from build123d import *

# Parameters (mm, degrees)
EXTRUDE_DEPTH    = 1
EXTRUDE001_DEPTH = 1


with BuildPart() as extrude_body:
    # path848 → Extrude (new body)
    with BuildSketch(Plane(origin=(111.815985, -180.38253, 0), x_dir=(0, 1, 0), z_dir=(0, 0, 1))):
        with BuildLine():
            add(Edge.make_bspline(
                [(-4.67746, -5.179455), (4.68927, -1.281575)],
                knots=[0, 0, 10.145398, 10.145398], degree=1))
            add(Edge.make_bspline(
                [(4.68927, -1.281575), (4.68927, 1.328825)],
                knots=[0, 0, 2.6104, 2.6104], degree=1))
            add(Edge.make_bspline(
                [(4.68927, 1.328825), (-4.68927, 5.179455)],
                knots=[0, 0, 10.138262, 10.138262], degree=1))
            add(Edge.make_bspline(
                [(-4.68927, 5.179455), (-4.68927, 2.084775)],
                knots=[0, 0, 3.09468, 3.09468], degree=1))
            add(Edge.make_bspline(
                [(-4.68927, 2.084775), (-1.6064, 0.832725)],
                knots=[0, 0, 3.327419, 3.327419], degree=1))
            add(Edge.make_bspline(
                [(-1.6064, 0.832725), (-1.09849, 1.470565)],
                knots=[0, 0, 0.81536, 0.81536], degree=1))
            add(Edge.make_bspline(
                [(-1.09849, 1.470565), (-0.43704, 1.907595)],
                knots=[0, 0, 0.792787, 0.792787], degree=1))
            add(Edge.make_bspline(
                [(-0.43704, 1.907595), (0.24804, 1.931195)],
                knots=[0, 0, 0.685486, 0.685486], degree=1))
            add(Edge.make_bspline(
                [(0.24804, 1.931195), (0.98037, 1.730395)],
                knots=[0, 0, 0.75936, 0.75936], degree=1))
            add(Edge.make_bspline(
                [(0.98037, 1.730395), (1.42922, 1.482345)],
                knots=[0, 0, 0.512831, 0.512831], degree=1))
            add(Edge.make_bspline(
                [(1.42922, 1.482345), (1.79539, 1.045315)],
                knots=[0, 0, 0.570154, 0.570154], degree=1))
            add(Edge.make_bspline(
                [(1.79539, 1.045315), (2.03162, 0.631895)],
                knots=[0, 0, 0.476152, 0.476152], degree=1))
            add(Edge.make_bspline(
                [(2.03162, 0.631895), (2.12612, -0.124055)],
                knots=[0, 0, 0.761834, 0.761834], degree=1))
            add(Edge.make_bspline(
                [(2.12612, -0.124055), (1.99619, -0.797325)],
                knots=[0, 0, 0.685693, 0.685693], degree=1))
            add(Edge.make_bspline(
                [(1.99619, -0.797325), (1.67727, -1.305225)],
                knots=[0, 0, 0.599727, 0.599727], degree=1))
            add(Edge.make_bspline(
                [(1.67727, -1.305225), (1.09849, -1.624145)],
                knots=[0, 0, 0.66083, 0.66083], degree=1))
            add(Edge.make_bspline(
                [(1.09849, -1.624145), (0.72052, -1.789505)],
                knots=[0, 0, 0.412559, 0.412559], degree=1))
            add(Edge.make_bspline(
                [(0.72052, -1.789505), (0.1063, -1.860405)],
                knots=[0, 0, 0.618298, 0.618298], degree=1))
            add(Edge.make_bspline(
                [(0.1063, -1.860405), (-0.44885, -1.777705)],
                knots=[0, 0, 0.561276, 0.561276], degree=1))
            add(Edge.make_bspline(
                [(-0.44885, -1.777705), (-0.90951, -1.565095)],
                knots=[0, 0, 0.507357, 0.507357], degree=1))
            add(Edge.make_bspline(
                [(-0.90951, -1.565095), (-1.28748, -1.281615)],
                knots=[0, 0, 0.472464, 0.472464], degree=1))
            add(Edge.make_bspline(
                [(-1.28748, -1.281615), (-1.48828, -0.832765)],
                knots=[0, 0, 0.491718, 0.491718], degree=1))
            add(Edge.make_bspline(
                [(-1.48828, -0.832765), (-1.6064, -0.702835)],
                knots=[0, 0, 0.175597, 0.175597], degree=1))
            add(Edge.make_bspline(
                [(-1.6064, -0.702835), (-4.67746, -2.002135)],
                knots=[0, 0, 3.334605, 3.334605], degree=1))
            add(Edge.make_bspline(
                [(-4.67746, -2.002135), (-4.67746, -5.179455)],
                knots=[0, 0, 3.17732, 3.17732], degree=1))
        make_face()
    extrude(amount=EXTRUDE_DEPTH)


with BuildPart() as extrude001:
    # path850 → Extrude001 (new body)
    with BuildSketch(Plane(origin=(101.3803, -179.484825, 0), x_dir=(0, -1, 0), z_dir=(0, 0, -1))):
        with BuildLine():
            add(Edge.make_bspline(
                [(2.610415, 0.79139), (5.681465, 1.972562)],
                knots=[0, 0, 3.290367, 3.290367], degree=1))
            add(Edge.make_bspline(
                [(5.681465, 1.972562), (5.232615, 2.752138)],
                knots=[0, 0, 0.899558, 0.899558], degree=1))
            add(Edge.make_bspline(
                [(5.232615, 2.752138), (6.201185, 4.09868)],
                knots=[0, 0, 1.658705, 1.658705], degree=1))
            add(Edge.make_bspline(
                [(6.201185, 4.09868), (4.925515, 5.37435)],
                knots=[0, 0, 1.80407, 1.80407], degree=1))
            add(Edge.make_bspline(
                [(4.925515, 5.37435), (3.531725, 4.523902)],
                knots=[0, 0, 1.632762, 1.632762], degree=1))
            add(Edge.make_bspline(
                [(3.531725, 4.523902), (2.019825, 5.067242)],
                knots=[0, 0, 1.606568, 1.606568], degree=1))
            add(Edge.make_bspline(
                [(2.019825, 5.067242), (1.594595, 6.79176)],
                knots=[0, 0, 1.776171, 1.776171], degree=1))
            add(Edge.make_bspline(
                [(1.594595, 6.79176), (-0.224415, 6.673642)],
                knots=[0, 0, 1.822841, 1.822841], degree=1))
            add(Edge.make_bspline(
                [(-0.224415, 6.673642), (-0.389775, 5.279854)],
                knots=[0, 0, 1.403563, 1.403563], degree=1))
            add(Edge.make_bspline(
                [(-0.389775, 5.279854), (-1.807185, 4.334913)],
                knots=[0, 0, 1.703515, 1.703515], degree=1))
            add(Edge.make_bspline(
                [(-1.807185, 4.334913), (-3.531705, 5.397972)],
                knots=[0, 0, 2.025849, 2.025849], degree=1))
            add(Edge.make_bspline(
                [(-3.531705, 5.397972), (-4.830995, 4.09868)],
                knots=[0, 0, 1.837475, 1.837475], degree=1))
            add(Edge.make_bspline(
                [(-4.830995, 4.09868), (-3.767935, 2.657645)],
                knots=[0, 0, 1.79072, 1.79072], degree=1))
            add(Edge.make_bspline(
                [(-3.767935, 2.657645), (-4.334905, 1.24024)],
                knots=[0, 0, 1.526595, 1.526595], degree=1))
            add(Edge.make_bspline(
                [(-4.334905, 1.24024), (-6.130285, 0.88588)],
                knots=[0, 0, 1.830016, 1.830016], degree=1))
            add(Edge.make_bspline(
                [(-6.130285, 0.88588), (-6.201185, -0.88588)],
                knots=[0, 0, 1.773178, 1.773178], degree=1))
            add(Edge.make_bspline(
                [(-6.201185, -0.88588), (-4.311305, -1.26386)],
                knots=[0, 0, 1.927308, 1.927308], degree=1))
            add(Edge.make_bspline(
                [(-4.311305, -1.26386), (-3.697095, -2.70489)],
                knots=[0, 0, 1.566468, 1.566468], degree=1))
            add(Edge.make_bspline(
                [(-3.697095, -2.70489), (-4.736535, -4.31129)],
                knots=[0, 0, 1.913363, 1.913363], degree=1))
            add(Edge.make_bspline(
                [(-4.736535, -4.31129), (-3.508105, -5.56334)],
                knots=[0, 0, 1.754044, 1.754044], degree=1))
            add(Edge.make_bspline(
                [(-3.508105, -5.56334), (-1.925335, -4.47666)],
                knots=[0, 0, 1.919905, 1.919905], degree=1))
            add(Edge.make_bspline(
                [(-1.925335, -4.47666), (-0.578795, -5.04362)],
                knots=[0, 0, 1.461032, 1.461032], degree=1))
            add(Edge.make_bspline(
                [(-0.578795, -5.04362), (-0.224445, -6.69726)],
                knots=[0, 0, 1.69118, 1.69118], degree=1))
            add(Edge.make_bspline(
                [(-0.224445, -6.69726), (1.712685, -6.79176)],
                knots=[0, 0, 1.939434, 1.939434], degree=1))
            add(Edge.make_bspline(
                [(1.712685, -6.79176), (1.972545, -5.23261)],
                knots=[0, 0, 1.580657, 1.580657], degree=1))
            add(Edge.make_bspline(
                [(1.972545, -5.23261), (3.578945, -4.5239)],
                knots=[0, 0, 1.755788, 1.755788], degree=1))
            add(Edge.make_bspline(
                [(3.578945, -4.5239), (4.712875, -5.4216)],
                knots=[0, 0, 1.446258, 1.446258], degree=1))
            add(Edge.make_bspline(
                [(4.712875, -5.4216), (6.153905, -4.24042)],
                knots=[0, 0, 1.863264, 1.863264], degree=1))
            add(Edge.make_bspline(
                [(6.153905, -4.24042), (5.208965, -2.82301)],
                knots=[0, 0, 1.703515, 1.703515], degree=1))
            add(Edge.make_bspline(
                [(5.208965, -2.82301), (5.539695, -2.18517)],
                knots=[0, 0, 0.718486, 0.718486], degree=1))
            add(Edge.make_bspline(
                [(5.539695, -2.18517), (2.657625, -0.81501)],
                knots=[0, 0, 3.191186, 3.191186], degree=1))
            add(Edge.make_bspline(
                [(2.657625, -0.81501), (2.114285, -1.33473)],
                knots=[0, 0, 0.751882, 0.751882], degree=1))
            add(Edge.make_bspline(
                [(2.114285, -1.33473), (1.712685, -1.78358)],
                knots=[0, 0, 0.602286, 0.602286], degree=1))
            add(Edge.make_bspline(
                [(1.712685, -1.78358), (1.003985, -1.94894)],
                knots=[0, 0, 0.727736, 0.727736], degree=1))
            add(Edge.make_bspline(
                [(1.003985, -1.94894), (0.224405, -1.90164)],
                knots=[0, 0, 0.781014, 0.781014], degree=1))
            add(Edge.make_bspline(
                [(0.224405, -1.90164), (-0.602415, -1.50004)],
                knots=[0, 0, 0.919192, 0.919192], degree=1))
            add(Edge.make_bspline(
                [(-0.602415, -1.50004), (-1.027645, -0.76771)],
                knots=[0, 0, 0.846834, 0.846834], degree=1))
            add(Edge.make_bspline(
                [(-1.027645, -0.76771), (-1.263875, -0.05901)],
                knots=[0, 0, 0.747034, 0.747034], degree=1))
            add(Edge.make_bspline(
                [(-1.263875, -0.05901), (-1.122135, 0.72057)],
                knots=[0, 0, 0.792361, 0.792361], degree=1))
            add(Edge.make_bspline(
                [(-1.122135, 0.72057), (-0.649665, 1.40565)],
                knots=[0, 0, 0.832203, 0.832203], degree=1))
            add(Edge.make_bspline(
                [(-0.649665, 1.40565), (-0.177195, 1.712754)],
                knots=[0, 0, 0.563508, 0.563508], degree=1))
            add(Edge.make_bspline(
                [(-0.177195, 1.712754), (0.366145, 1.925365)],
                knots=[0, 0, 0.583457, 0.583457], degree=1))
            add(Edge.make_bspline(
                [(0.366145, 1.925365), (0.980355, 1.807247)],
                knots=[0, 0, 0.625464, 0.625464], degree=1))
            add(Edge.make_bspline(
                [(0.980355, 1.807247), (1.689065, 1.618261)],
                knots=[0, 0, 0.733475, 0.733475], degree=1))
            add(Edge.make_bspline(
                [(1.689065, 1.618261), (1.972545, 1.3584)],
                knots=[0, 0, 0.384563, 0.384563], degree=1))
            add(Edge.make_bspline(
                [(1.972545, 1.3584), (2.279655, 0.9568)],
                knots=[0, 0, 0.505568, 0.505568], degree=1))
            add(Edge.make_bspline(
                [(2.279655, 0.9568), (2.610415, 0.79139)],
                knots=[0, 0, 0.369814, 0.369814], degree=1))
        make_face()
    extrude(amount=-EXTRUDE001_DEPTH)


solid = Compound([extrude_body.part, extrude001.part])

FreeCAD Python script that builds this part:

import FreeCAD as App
import Part
import Sketcher

V = App.Vector

doc = App.newDocument("Part")
body = doc.addObject("PartDesign::Body", "Body")

# Sketch on XY plane
sketch1 = doc.addObject("Sketcher::SketchObject", "Sketch")
body.addObject(sketch1)
sketch1.AttachmentSupport = (doc.XY_Plane, [""])
sketch1.MapMode = "FlatFace"
sketch1.addGeometry([
    Part.BSplineCurve([V(116.99544, -185.05999, 0), V(113.09756, -175.69326, 0)], [2, 2], [0, 10.145398], False, 1, [1, 1], False),  # 0
    Part.BSplineCurve([V(113.09756, -175.69326, 0), V(110.48716, -175.69326, 0)], [2, 2], [0, 2.6104], False, 1, [1, 1], False),  # 1
    Part.BSplineCurve([V(110.48716, -175.69326, 0), V(106.63653, -185.0718, 0)], [2, 2], [0, 10.138262], False, 1, [1, 1], False),  # 2
    Part.BSplineCurve([V(106.63653, -185.0718, 0), V(109.73121, -185.0718, 0)], [2, 2], [0, 3.09468], False, 1, [1, 1], False),  # 3
    Part.BSplineCurve([V(109.73121, -185.0718, 0), V(110.98326, -181.98893, 0)], [2, 2], [0, 3.327419], False, 1, [1, 1], False),  # 4
    Part.BSplineCurve([V(110.98326, -181.98893, 0), V(110.34542, -181.48102, 0)], [2, 2], [0, 0.81536], False, 1, [1, 1], False),  # 5
    Part.BSplineCurve([V(110.34542, -181.48102, 0), V(109.90839, -180.81957, 0)], [2, 2], [0, 0.792787], False, 1, [1, 1], False),  # 6
    Part.BSplineCurve([V(109.90839, -180.81957, 0), V(109.88479, -180.13449, 0)], [2, 2], [0, 0.685486], False, 1, [1, 1], False),  # 7
    Part.BSplineCurve([V(109.88479, -180.13449, 0), V(110.08559, -179.40216, 0)], [2, 2], [0, 0.75936], False, 1, [1, 1], False),  # 8
    Part.BSplineCurve([V(110.08559, -179.40216, 0), V(110.33364, -178.95331, 0)], [2, 2], [0, 0.512831], False, 1, [1, 1], False),  # 9
    Part.BSplineCurve([V(110.33364, -178.95331, 0), V(110.77067, -178.58714, 0)], [2, 2], [0, 0.570154], False, 1, [1, 1], False),  # 10
    Part.BSplineCurve([V(110.77067, -178.58714, 0), V(111.18409, -178.35091, 0)], [2, 2], [0, 0.476152], False, 1, [1, 1], False),  # 11
    Part.BSplineCurve([V(111.18409, -178.35091, 0), V(111.94004, -178.25641, 0)], [2, 2], [0, 0.761834], False, 1, [1, 1], False),  # 12
    Part.BSplineCurve([V(111.94004, -178.25641, 0), V(112.61331, -178.38634, 0)], [2, 2], [0, 0.685693], False, 1, [1, 1], False),  # 13
    Part.BSplineCurve([V(112.61331, -178.38634, 0), V(113.12121, -178.70526, 0)], [2, 2], [0, 0.599727], False, 1, [1, 1], False),  # 14
    Part.BSplineCurve([V(113.12121, -178.70526, 0), V(113.44013, -179.28404, 0)], [2, 2], [0, 0.66083], False, 1, [1, 1], False),  # 15
    Part.BSplineCurve([V(113.44013, -179.28404, 0), V(113.60549, -179.66201, 0)], [2, 2], [0, 0.412559], False, 1, [1, 1], False),  # 16
    Part.BSplineCurve([V(113.60549, -179.66201, 0), V(113.67639, -180.27623, 0)], [2, 2], [0, 0.618298], False, 1, [1, 1], False),  # 17
    Part.BSplineCurve([V(113.67639, -180.27623, 0), V(113.59369, -180.83138, 0)], [2, 2], [0, 0.561276], False, 1, [1, 1], False),  # 18
    Part.BSplineCurve([V(113.59369, -180.83138, 0), V(113.38108, -181.29204, 0)], [2, 2], [0, 0.507357], False, 1, [1, 1], False),  # 19
    Part.BSplineCurve([V(113.38108, -181.29204, 0), V(113.0976, -181.67001, 0)], [2, 2], [0, 0.472464], False, 1, [1, 1], False),  # 20
    Part.BSplineCurve([V(113.0976, -181.67001, 0), V(112.64875, -181.87081, 0)], [2, 2], [0, 0.491718], False, 1, [1, 1], False),  # 21
    Part.BSplineCurve([V(112.64875, -181.87081, 0), V(112.51882, -181.98893, 0)], [2, 2], [0, 0.175597], False, 1, [1, 1], False),  # 22
    Part.BSplineCurve([V(112.51882, -181.98893, 0), V(113.81812, -185.05999, 0)], [2, 2], [0, 3.334605], False, 1, [1, 1], False),  # 23
    Part.BSplineCurve([V(113.81812, -185.05999, 0), V(116.99544, -185.05999, 0)], [2, 2], [0, 3.17732], False, 1, [1, 1], False),  # 24
], False)
sketch1.addConstraint([
    Sketcher.Constraint("Block", 0),
    Sketcher.Constraint("Block", 1),
    Sketcher.Constraint("Block", 2),
    Sketcher.Constraint("Block", 3),
    Sketcher.Constraint("Block", 4),
    Sketcher.Constraint("Block", 5),
    Sketcher.Constraint("Block", 6),
    Sketcher.Constraint("Block", 7),
    Sketcher.Constraint("Block", 8),
    Sketcher.Constraint("Block", 9),
    Sketcher.Constraint("Block", 10),
    Sketcher.Constraint("Block", 11),
    Sketcher.Constraint("Block", 12),
    Sketcher.Constraint("Block", 13),
    Sketcher.Constraint("Block", 14),
    Sketcher.Constraint("Block", 15),
    Sketcher.Constraint("Block", 16),
    Sketcher.Constraint("Block", 17),
    Sketcher.Constraint("Block", 18),
    Sketcher.Constraint("Block", 19),
    Sketcher.Constraint("Block", 20),
    Sketcher.Constraint("Block", 21),
    Sketcher.Constraint("Block", 22),
    Sketcher.Constraint("Block", 23),
    Sketcher.Constraint("Block", 24),
])
pad1 = doc.addObject("PartDesign::Pad", "Pad")
body.addObject(pad1)
pad1.Profile = sketch1
pad1.Length = 1
body2 = doc.addObject("PartDesign::Body", "Body001")

# Sketch on XY plane
sketch2 = doc.addObject("Sketcher::SketchObject", "Sketch001")
body2.addObject(sketch2)
sketch2.AttachmentSupport = (doc.getObject("XY_Plane001"), [""])
sketch2.MapMode = "FlatFace"
sketch2.addGeometry([
    Part.BSplineCurve([V(100.58891, -182.09524, 0), V(99.407738, -185.16629, 0)], [2, 2], [0, 3.290367], False, 1, [1, 1], False),  # 0
    Part.BSplineCurve([V(99.407738, -185.16629, 0), V(98.628162, -184.71744, 0)], [2, 2], [0, 0.899558], False, 1, [1, 1], False),  # 1
    Part.BSplineCurve([V(98.628162, -184.71744, 0), V(97.28162, -185.68601, 0)], [2, 2], [0, 1.658705], False, 1, [1, 1], False),  # 2
    Part.BSplineCurve([V(97.28162, -185.68601, 0), V(96.00595, -184.41034, 0)], [2, 2], [0, 1.80407], False, 1, [1, 1], False),  # 3
    Part.BSplineCurve([V(96.00595, -184.41034, 0), V(96.856398, -183.01655, 0)], [2, 2], [0, 1.632762], False, 1, [1, 1], False),  # 4
    Part.BSplineCurve([V(96.856398, -183.01655, 0), V(96.313058, -181.50465, 0)], [2, 2], [0, 1.606568], False, 1, [1, 1], False),  # 5
    Part.BSplineCurve([V(96.313058, -181.50465, 0), V(94.58854, -181.07942, 0)], [2, 2], [0, 1.776171], False, 1, [1, 1], False),  # 6
    Part.BSplineCurve([V(94.58854, -181.07942, 0), V(94.706658, -179.26041, 0)], [2, 2], [0, 1.822841], False, 1, [1, 1], False),  # 7
    Part.BSplineCurve([V(94.706658, -179.26041, 0), V(96.100446, -179.09505, 0)], [2, 2], [0, 1.403563], False, 1, [1, 1], False),  # 8
    Part.BSplineCurve([V(96.100446, -179.09505, 0), V(97.045387, -177.67764, 0)], [2, 2], [0, 1.703515], False, 1, [1, 1], False),  # 9
    Part.BSplineCurve([V(97.045387, -177.67764, 0), V(95.982328, -175.95312, 0)], [2, 2], [0, 2.025849], False, 1, [1, 1], False),  # 10
    Part.BSplineCurve([V(95.982328, -175.95312, 0), V(97.28162, -174.65383, 0)], [2, 2], [0, 1.837475], False, 1, [1, 1], False),  # 11
    Part.BSplineCurve([V(97.28162, -174.65383, 0), V(98.722655, -175.71689, 0)], [2, 2], [0, 1.79072], False, 1, [1, 1], False),  # 12
    Part.BSplineCurve([V(98.722655, -175.71689, 0), V(100.14006, -175.14992, 0)], [2, 2], [0, 1.526595], False, 1, [1, 1], False),  # 13
    Part.BSplineCurve([V(100.14006, -175.14992, 0), V(100.49442, -173.35454, 0)], [2, 2], [0, 1.830016], False, 1, [1, 1], False),  # 14
    Part.BSplineCurve([V(100.49442, -173.35454, 0), V(102.26618, -173.28364, 0)], [2, 2], [0, 1.773178], False, 1, [1, 1], False),  # 15
    Part.BSplineCurve([V(102.26618, -173.28364, 0), V(102.64416, -175.17352, 0)], [2, 2], [0, 1.927308], False, 1, [1, 1], False),  # 16
    Part.BSplineCurve([V(102.64416, -175.17352, 0), V(104.08519, -175.78773, 0)], [2, 2], [0, 1.566468], False, 1, [1, 1], False),  # 17
    Part.BSplineCurve([V(104.08519, -175.78773, 0), V(105.69159, -174.74829, 0)], [2, 2], [0, 1.913363], False, 1, [1, 1], False),  # 18
    Part.BSplineCurve([V(105.69159, -174.74829, 0), V(106.94364, -175.97672, 0)], [2, 2], [0, 1.754044], False, 1, [1, 1], False),  # 19
    Part.BSplineCurve([V(106.94364, -175.97672, 0), V(105.85696, -177.55949, 0)], [2, 2], [0, 1.919905], False, 1, [1, 1], False),  # 20
    Part.BSplineCurve([V(105.85696, -177.55949, 0), V(106.42392, -178.90603, 0)], [2, 2], [0, 1.461032], False, 1, [1, 1], False),  # 21
    Part.BSplineCurve([V(106.42392, -178.90603, 0), V(108.07756, -179.26038, 0)], [2, 2], [0, 1.69118], False, 1, [1, 1], False),  # 22
    Part.BSplineCurve([V(108.07756, -179.26038, 0), V(108.17206, -181.19751, 0)], [2, 2], [0, 1.939434], False, 1, [1, 1], False),  # 23
    Part.BSplineCurve([V(108.17206, -181.19751, 0), V(106.61291, -181.45737, 0)], [2, 2], [0, 1.580657], False, 1, [1, 1], False),  # 24
    Part.BSplineCurve([V(106.61291, -181.45737, 0), V(105.9042, -183.06377, 0)], [2, 2], [0, 1.755788], False, 1, [1, 1], False),  # 25
    Part.BSplineCurve([V(105.9042, -183.06377, 0), V(106.8019, -184.1977, 0)], [2, 2], [0, 1.446258], False, 1, [1, 1], False),  # 26
    Part.BSplineCurve([V(106.8019, -184.1977, 0), V(105.62072, -185.63873, 0)], [2, 2], [0, 1.863264], False, 1, [1, 1], False),  # 27
    Part.BSplineCurve([V(105.62072, -185.63873, 0), V(104.20331, -184.69379, 0)], [2, 2], [0, 1.703515], False, 1, [1, 1], False),  # 28
    Part.BSplineCurve([V(104.20331, -184.69379, 0), V(103.56547, -185.02452, 0)], [2, 2], [0, 0.718486], False, 1, [1, 1], False),  # 29
    Part.BSplineCurve([V(103.56547, -185.02452, 0), V(102.19531, -182.14245, 0)], [2, 2], [0, 3.191186], False, 1, [1, 1], False),  # 30
    Part.BSplineCurve([V(102.19531, -182.14245, 0), V(102.71503, -181.59911, 0)], [2, 2], [0, 0.751882], False, 1, [1, 1], False),  # 31
    Part.BSplineCurve([V(102.71503, -181.59911, 0), V(103.16388, -181.19751, 0)], [2, 2], [0, 0.602286], False, 1, [1, 1], False),  # 32
    Part.BSplineCurve([V(103.16388, -181.19751, 0), V(103.32924, -180.48881, 0)], [2, 2], [0, 0.727736], False, 1, [1, 1], False),  # 33
    Part.BSplineCurve([V(103.32924, -180.48881, 0), V(103.28194, -179.70923, 0)], [2, 2], [0, 0.781014], False, 1, [1, 1], False),  # 34
    Part.BSplineCurve([V(103.28194, -179.70923, 0), V(102.88034, -178.88241, 0)], [2, 2], [0, 0.919192], False, 1, [1, 1], False),  # 35
    Part.BSplineCurve([V(102.88034, -178.88241, 0), V(102.14801, -178.45718, 0)], [2, 2], [0, 0.846834], False, 1, [1, 1], False),  # 36
    Part.BSplineCurve([V(102.14801, -178.45718, 0), V(101.43931, -178.22095, 0)], [2, 2], [0, 0.747034], False, 1, [1, 1], False),  # 37
    Part.BSplineCurve([V(101.43931, -178.22095, 0), V(100.65973, -178.36269, 0)], [2, 2], [0, 0.792361], False, 1, [1, 1], False),  # 38
    Part.BSplineCurve([V(100.65973, -178.36269, 0), V(99.97465, -178.83516, 0)], [2, 2], [0, 0.832203], False, 1, [1, 1], False),  # 39
    Part.BSplineCurve([V(99.97465, -178.83516, 0), V(99.667546, -179.30763, 0)], [2, 2], [0, 0.563508], False, 1, [1, 1], False),  # 40
    Part.BSplineCurve([V(99.667546, -179.30763, 0), V(99.454935, -179.85097, 0)], [2, 2], [0, 0.583457], False, 1, [1, 1], False),  # 41
    Part.BSplineCurve([V(99.454935, -179.85097, 0), V(99.573053, -180.46518, 0)], [2, 2], [0, 0.625464], False, 1, [1, 1], False),  # 42
    Part.BSplineCurve([V(99.573053, -180.46518, 0), V(99.762039, -181.17389, 0)], [2, 2], [0, 0.733475], False, 1, [1, 1], False),  # 43
    Part.BSplineCurve([V(99.762039, -181.17389, 0), V(100.0219, -181.45737, 0)], [2, 2], [0, 0.384563], False, 1, [1, 1], False),  # 44
    Part.BSplineCurve([V(100.0219, -181.45737, 0), V(100.4235, -181.76448, 0)], [2, 2], [0, 0.505568], False, 1, [1, 1], False),  # 45
    Part.BSplineCurve([V(100.4235, -181.76448, 0), V(100.58891, -182.09524, 0)], [2, 2], [0, 0.369814], False, 1, [1, 1], False),  # 46
], False)
sketch2.addConstraint([
    Sketcher.Constraint("Block", 0),
    Sketcher.Constraint("Block", 1),
    Sketcher.Constraint("Block", 2),
    Sketcher.Constraint("Block", 3),
    Sketcher.Constraint("Block", 4),
    Sketcher.Constraint("Block", 5),
    Sketcher.Constraint("Block", 6),
    Sketcher.Constraint("Block", 7),
    Sketcher.Constraint("Block", 8),
    Sketcher.Constraint("Block", 9),
    Sketcher.Constraint("Block", 10),
    Sketcher.Constraint("Block", 11),
    Sketcher.Constraint("Block", 12),
    Sketcher.Constraint("Block", 13),
    Sketcher.Constraint("Block", 14),
    Sketcher.Constraint("Block", 15),
    Sketcher.Constraint("Block", 16),
    Sketcher.Constraint("Block", 17),
    Sketcher.Constraint("Block", 18),
    Sketcher.Constraint("Block", 19),
    Sketcher.Constraint("Block", 20),
    Sketcher.Constraint("Block", 21),
    Sketcher.Constraint("Block", 22),
    Sketcher.Constraint("Block", 23),
    Sketcher.Constraint("Block", 24),
    Sketcher.Constraint("Block", 25),
    Sketcher.Constraint("Block", 26),
    Sketcher.Constraint("Block", 27),
    Sketcher.Constraint("Block", 28),
    Sketcher.Constraint("Block", 29),
    Sketcher.Constraint("Block", 30),
    Sketcher.Constraint("Block", 31),
    Sketcher.Constraint("Block", 32),
    Sketcher.Constraint("Block", 33),
    Sketcher.Constraint("Block", 34),
    Sketcher.Constraint("Block", 35),
    Sketcher.Constraint("Block", 36),
    Sketcher.Constraint("Block", 37),
    Sketcher.Constraint("Block", 38),
    Sketcher.Constraint("Block", 39),
    Sketcher.Constraint("Block", 40),
    Sketcher.Constraint("Block", 41),
    Sketcher.Constraint("Block", 42),
    Sketcher.Constraint("Block", 43),
    Sketcher.Constraint("Block", 44),
    Sketcher.Constraint("Block", 45),
    Sketcher.Constraint("Block", 46),
])
pad2 = doc.addObject("PartDesign::Pad", "Pad001")
body2.addObject(pad2)
pad2.Profile = sketch2
pad2.Length = 1

doc.recompute()
